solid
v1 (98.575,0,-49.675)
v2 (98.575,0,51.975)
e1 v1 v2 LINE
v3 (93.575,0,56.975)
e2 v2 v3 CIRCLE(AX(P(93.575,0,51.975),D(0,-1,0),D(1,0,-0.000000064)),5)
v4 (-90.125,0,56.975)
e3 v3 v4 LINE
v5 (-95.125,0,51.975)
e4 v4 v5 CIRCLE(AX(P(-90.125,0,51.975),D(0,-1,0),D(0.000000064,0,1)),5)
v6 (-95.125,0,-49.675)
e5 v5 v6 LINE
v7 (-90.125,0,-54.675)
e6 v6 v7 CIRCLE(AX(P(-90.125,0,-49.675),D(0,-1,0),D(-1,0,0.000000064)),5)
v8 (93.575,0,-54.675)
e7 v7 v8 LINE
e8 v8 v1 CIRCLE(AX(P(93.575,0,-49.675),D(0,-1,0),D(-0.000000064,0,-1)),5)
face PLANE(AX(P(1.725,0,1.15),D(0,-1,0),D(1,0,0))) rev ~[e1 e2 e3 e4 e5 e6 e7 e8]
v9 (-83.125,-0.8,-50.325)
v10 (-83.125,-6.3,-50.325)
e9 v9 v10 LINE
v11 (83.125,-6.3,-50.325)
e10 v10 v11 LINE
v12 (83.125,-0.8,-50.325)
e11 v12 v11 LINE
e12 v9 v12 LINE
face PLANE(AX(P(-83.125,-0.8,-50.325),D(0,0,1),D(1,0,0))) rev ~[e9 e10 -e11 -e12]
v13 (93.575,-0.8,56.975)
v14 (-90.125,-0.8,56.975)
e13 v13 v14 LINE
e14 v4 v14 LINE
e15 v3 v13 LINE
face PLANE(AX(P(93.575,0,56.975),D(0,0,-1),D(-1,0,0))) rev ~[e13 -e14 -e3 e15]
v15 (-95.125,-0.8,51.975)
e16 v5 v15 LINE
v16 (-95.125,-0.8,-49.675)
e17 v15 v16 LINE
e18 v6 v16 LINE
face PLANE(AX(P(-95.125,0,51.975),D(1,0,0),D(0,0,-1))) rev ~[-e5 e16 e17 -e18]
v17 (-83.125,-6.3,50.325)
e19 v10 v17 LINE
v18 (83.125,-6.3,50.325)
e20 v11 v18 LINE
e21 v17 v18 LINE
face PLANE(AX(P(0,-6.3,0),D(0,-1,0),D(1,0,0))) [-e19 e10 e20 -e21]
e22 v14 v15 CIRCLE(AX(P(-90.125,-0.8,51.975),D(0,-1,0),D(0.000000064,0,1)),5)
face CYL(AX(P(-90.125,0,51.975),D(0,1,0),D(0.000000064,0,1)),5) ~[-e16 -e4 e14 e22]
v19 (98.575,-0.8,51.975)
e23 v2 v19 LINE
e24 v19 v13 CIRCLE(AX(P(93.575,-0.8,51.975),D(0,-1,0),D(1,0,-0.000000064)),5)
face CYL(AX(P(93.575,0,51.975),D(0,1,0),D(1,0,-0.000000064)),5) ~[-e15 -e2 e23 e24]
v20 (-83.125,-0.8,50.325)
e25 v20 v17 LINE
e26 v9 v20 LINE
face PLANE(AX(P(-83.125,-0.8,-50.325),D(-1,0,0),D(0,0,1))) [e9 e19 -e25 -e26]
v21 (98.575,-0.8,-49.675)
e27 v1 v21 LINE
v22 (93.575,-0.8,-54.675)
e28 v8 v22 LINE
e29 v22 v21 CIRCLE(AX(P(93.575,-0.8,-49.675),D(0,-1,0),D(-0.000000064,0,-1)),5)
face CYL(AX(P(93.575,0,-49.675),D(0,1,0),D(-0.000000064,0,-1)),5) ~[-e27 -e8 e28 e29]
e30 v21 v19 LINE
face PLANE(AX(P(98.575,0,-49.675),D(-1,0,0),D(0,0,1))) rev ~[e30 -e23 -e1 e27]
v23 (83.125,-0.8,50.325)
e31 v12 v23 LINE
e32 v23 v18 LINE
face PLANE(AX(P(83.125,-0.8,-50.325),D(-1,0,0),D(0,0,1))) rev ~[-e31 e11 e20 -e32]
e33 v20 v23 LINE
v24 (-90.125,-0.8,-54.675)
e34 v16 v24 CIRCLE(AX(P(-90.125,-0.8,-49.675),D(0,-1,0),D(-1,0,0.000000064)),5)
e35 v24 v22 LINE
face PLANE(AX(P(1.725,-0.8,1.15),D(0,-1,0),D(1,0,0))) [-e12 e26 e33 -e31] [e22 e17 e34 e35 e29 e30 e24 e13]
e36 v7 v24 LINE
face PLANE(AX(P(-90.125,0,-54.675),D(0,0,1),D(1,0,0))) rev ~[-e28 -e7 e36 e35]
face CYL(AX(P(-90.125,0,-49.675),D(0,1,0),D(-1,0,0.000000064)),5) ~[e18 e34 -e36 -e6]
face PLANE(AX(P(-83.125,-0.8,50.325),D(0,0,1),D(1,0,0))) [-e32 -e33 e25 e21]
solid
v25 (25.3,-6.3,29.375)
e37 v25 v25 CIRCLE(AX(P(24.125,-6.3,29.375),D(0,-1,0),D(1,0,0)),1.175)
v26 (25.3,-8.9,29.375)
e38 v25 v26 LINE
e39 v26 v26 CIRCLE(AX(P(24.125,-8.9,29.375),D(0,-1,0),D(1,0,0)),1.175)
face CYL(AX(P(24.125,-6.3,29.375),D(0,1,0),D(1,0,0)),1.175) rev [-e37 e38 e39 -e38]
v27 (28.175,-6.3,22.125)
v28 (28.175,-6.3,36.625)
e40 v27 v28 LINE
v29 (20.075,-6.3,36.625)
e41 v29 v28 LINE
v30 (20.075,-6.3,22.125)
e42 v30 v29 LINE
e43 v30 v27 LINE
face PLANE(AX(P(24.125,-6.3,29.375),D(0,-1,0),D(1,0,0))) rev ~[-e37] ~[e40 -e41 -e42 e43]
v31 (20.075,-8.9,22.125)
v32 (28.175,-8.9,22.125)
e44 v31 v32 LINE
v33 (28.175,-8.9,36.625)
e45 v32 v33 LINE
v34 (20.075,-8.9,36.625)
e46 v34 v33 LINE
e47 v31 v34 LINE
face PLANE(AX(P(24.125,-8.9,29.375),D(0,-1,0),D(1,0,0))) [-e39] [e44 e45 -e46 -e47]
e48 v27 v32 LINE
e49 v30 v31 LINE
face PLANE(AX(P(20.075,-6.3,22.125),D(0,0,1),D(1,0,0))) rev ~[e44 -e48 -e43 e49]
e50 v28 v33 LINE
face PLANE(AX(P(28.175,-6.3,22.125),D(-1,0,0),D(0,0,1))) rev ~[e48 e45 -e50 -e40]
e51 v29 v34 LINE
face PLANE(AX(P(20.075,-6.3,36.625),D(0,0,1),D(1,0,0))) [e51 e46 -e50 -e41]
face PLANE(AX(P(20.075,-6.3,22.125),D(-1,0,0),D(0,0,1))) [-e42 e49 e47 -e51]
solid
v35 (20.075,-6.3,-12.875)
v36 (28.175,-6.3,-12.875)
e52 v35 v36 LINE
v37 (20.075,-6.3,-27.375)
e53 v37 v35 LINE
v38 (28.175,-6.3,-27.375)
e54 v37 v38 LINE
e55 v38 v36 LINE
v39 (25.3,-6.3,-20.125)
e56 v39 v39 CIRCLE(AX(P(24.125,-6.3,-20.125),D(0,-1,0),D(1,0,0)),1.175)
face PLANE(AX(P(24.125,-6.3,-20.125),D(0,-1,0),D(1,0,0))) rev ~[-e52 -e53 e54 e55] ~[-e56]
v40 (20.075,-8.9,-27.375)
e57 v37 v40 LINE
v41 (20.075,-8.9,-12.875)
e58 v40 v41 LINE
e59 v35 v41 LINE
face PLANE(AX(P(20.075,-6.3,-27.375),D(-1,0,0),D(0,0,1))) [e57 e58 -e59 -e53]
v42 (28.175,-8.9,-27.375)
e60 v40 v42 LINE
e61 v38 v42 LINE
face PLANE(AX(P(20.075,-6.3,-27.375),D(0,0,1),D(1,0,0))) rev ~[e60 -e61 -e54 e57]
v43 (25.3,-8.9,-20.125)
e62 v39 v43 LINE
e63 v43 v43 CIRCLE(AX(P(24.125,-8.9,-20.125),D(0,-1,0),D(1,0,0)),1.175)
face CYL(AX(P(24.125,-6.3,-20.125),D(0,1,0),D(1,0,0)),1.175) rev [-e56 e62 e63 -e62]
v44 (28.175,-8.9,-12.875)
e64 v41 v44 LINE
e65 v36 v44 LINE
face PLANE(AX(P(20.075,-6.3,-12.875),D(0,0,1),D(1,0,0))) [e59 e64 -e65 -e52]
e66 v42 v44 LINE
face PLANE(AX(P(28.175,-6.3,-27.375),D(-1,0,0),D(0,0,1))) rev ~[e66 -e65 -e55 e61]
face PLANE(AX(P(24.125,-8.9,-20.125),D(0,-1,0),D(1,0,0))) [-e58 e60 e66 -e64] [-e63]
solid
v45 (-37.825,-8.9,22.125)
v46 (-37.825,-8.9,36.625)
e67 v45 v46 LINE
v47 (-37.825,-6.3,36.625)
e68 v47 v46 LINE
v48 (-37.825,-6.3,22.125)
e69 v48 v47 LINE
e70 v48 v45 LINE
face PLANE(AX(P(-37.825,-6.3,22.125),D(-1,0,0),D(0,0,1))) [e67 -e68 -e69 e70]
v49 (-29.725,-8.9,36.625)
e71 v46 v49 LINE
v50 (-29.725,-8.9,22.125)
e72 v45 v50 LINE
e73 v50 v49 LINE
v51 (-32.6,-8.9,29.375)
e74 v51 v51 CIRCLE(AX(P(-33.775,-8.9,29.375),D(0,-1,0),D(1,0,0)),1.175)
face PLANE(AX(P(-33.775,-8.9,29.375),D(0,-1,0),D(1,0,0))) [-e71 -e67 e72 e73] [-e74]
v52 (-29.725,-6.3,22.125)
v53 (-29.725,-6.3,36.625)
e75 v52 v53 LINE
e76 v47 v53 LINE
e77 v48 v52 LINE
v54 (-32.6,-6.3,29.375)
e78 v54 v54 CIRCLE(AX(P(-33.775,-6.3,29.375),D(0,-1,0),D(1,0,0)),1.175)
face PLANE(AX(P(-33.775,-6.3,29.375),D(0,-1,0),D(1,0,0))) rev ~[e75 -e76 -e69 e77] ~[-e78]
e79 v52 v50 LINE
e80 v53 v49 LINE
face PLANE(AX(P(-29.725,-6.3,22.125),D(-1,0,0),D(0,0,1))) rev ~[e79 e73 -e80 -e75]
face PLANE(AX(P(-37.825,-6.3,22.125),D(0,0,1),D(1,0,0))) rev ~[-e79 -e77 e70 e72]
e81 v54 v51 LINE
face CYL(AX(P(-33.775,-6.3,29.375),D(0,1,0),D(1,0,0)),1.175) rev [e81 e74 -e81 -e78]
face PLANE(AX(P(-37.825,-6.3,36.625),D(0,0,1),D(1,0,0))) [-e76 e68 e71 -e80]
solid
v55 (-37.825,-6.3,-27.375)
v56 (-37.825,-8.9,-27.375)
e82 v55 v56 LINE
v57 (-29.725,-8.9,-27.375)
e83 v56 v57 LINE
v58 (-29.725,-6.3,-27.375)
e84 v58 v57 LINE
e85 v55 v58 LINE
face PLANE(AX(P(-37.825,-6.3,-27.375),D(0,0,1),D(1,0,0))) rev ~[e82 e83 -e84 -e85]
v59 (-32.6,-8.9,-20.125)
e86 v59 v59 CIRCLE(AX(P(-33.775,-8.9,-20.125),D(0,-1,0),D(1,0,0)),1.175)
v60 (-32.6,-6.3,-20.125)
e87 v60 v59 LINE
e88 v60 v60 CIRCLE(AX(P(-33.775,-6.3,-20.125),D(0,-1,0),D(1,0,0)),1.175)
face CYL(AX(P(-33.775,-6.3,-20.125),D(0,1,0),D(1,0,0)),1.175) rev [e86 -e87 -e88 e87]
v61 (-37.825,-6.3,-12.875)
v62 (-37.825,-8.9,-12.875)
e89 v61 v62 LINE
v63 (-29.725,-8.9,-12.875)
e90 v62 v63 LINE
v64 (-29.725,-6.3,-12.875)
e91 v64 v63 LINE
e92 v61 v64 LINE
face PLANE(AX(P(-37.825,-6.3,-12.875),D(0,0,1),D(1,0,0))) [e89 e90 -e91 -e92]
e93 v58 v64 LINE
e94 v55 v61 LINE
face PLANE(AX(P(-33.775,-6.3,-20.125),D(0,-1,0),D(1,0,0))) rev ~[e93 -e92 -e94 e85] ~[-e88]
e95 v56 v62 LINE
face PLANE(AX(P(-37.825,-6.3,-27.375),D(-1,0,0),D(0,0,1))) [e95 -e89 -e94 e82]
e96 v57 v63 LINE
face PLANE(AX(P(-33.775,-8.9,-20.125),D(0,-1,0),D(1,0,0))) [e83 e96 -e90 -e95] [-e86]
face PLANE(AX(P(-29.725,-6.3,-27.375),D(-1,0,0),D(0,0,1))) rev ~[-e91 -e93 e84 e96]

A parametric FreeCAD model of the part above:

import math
import FreeCAD as App
import Part
import Sketcher

V = App.Vector


def add_polygon(sketch, points):
    """Adds a closed chain of lines whose ends are joined by coincident constraints."""
    first, n = sketch.GeometryCount, len(points)
    for a, b in zip(points, points[1:] + points[:1]):
        sketch.addGeometry(Part.LineSegment(App.Vector(*a, 0), App.Vector(*b, 0)), False)
    for i in range(n):
        sketch.addConstraint(Sketcher.Constraint("Coincident", first + i, 2, first + (i + 1) % n, 1))

doc = App.newDocument("Part")
body = doc.addObject("PartDesign::Body", "Body")

sketch1 = body.newObject("Sketcher::SketchObject", "Sketch")
sketch1.AttachmentSupport = (doc.getObject("XZ_Plane"), [""])
sketch1.MapMode = "FlatFace"
sketch1.addGeometry(Part.LineSegment(V(-95.1, 52, 0), V(-95.1, -49.7, 0)), False)
sketch1.addGeometry(Part.ArcOfCircle(Part.Circle(V(-90.1, -49.7, 0), V(0, 0, 1), 5), math.radians(180), math.radians(270)), False)
sketch1.addGeometry(Part.LineSegment(V(-90.1, -54.7, 0), V(93.6, -54.7, 0)), False)
sketch1.addGeometry(Part.ArcOfCircle(Part.Circle(V(93.6, -49.7, 0), V(0, 0, 1), 5), math.radians(-90), math.radians(0)), False)
sketch1.addGeometry(Part.LineSegment(V(98.6, -49.7, 0), V(98.6, 52, 0)), False)
sketch1.addGeometry(Part.ArcOfCircle(Part.Circle(V(93.6, 52, 0), V(0, 0, 1), 5), math.radians(0), math.radians(90)), False)
sketch1.addGeometry(Part.LineSegment(V(93.6, 57, 0), V(-90.1, 57, 0)), False)
sketch1.addGeometry(Part.ArcOfCircle(Part.Circle(V(-90.1, 52, 0), V(0, 0, 1), 5), math.radians(90), math.radians(180)), False)
sketch1.addConstraint(Sketcher.Constraint("Tangent", 0, 2, 1, 1))
sketch1.addConstraint(Sketcher.Constraint("Tangent", 1, 2, 2, 1))
sketch1.addConstraint(Sketcher.Constraint("Tangent", 2, 2, 3, 1))
sketch1.addConstraint(Sketcher.Constraint("Tangent", 3, 2, 4, 1))
sketch1.addConstraint(Sketcher.Constraint("Tangent", 4, 2, 5, 1))
sketch1.addConstraint(Sketcher.Constraint("Tangent", 5, 2, 6, 1))
sketch1.addConstraint(Sketcher.Constraint("Tangent", 6, 2, 7, 1))
sketch1.addConstraint(Sketcher.Constraint("Tangent", 7, 2, 0, 1))
sketch1.addConstraint(Sketcher.Constraint("Vertical", 0))
sketch1.addConstraint(Sketcher.Constraint("Horizontal", 2))
sketch1.addConstraint(Sketcher.Constraint("Vertical", 4))
sketch1.addConstraint(Sketcher.Constraint("Horizontal", 6))
sketch1.addConstraint(Sketcher.Constraint("Equal", 1, 3))
sketch1.addConstraint(Sketcher.Constraint("Equal", 3, 5))
sketch1.addConstraint(Sketcher.Constraint("Equal", 5, 7))
sketch1.addConstraint(Sketcher.Constraint("Radius", 1, 5.0))
sketch1.addConstraint(Sketcher.Constraint("DistanceX", 2, 1, 2, 2, 183.7))
sketch1.addConstraint(Sketcher.Constraint("DistanceY", 0, 2, 0, 1, 101.65))
sketch1.addConstraint(Sketcher.Constraint("DistanceX", 1, 3, -1, 1, 90.125))
sketch1.addConstraint(Sketcher.Constraint("DistanceY", 1, 3, -1, 1, 49.675))
pad1 = body.newObject("PartDesign::Pad", "Pad")
pad1.Profile = sketch1
pad1.Length = 0.8

sketch2 = body.newObject("Sketcher::SketchObject", "Sketch001")
sketch2.AttachmentSupport = (doc.getObject("XZ_Plane"), [""])
sketch2.MapMode = "FlatFace"
sketch2.AttachmentOffset = App.Placement(V(0, 0, 0.8), App.Rotation())
add_polygon(sketch2, [(-83, 50), (-83, -50), (83, -50), (83, 50)])
sketch2.addConstraint(Sketcher.Constraint("Vertical", 0))
sketch2.addConstraint(Sketcher.Constraint("Horizontal", 1))
sketch2.addConstraint(Sketcher.Constraint("Vertical", 2))
sketch2.addConstraint(Sketcher.Constraint("Horizontal", 3))
sketch2.addConstraint(Sketcher.Constraint("Symmetric", 0, 2, 2, 2, -1, 1))
sketch2.addConstraint(Sketcher.Constraint("DistanceX", 1, 1, 1, 2, 166.25))
sketch2.addConstraint(Sketcher.Constraint("DistanceY", 0, 2, 0, 1, 100.65))
pad2 = body.newObject("PartDesign::Pad", "Pad001")
pad2.Profile = sketch2
pad2.Length = 5.5
body2 = doc.addObject("PartDesign::Body", "Body001")
body2.AllowCompound = True

sketch3 = body2.newObject("Sketcher::SketchObject", "Sketch002")
sketch3.AttachmentSupport = (doc.getObject("XZ_Plane001"), [""])
sketch3.MapMode = "FlatFace"
sketch3.AttachmentOffset = App.Placement(V(0, 0, 6.3), App.Rotation())
add_polygon(sketch3, [(-37.8, 36.6), (-37.8, 22.1), (-29.7, 22.1), (-29.7, 36.6)])
sketch3.addGeometry(Part.Circle(V(-33.8, 29.4, 0), V(0, 0, 1), 1.2), False)
add_polygon(sketch3, [(20.1, 36.6), (20.1, 22.1), (28.2, 22.1), (28.2, 36.6)])
sketch3.addGeometry(Part.Circle(V(24.1, 29.4, 0), V(0, 0, 1), 1.2), False)
add_polygon(sketch3, [(20.1, -12.9), (20.1, -27.4), (28.2, -27.4), (28.2, -12.9)])
sketch3.addGeometry(Part.Circle(V(24.1, -20.1, 0), V(0, 0, 1), 1.2), False)
add_polygon(sketch3, [(-37.8, -12.9), (-37.8, -27.4), (-29.7, -27.4), (-29.7, -12.9)])
sketch3.addGeometry(Part.Circle(V(-33.8, -20.1, 0), V(0, 0, 1), 1.2), False)
sketch3.addConstraint(Sketcher.Constraint("Vertical", 0))
sketch3.addConstraint(Sketcher.Constraint("Horizontal", 1))
sketch3.addConstraint(Sketcher.Constraint("Vertical", 2))
sketch3.addConstraint(Sketcher.Constraint("Horizontal", 3))
sketch3.addConstraint(Sketcher.Constraint("Vertical", 5))
sketch3.addConstraint(Sketcher.Constraint("Horizontal", 6))
sketch3.addConstraint(Sketcher.Constraint("Vertical", 7))
sketch3.addConstraint(Sketcher.Constraint("Horizontal", 8))
sketch3.addConstraint(Sketcher.Constraint("Vertical", 10))
sketch3.addConstraint(Sketcher.Constraint("Horizontal", 11))
sketch3.addConstraint(Sketcher.Constraint("Vertical", 12))
sketch3.addConstraint(Sketcher.Constraint("Horizontal", 13))
sketch3.addConstraint(Sketcher.Constraint("Vertical", 15))
sketch3.addConstraint(Sketcher.Constraint("Horizontal", 16))
sketch3.addConstraint(Sketcher.Constraint("Vertical", 17))
sketch3.addConstraint(Sketcher.Constraint("Horizontal", 18))
sketch3.addConstraint(Sketcher.Constraint("Equal", 4, 9))
sketch3.addConstraint(Sketcher.Constraint("Equal", 9, 14))
sketch3.addConstraint(Sketcher.Constraint("Equal", 14, 19))
sketch3.addConstraint(Sketcher.Constraint("Horizontal", 4, 3, 9, 3))
sketch3.addConstraint(Sketcher.Constraint("Horizontal", 14, 3, 19, 3))
sketch3.addConstraint(Sketcher.Constraint("Horizontal", 1, 2, 5, 2))
sketch3.addConstraint(Sketcher.Constraint("Horizontal", 3, 2, 7, 2))
sketch3.addConstraint(Sketcher.Constraint("Horizontal", 11, 2, 15, 2))
sketch3.addConstraint(Sketcher.Constraint("Horizontal", 13, 2, 17, 2))
sketch3.addConstraint(Sketcher.Constraint("Vertical", 9, 3, 14, 3))
sketch3.addConstraint(Sketcher.Constraint("Vertical", 4, 3, 19, 3))
sketch3.addConstraint(Sketcher.Constraint("Vertical", 8, 2, 10, 2))
sketch3.addConstraint(Sketcher.Constraint("Vertical", 7, 2, 11, 2))
sketch3.addConstraint(Sketcher.Constraint("Vertical", 3, 2, 15, 2))
sketch3.addConstraint(Sketcher.Constraint("Vertical", 2, 2, 16, 2))
sketch3.addConstraint(Sketcher.Constraint("Equal", 3, 6))
sketch3.addConstraint(Sketcher.Constraint("Equal", 7, 10))
sketch3.addConstraint(Sketcher.Constraint("Diameter", 4, 2.35))
sketch3.addConstraint(Sketcher.Constraint("DistanceX", 1, 1, 1, 2, 8.1))
sketch3.addConstraint(Sketcher.Constraint("DistanceY", 0, 2, 0, 1, 14.5))
sketch3.addConstraint(Sketcher.Constraint("DistanceY", 12, 2, 6, 2, 35.0))
sketch3.addConstraint(Sketcher.Constraint("DistanceX", 4, 3, 9, 3, 57.9))
sketch3.addConstraint(Sketcher.Constraint("DistanceY", 14, 3, 9, 3, 49.5))
sketch3.addConstraint(Sketcher.Constraint("DistanceX", 1, 2, 5, 2, 49.8))
sketch3.addConstraint(Sketcher.Constraint("DistanceX", 0, 2, 4, 3, 4.05))
sketch3.addConstraint(Sketcher.Constraint("DistanceY", 0, 2, 4, 3, 7.25))
sketch3.addConstraint(Sketcher.Constraint("DistanceX", 4, 3, -1, 1, 33.775))
sketch3.addConstraint(Sketcher.Constraint("DistanceY", -1, 1, 4, 3, 29.375))
pad3 = body2.newObject("PartDesign::Pad", "Pad002")
pad3.Profile = sketch3
pad3.Length = 2.6

doc.recompute()
